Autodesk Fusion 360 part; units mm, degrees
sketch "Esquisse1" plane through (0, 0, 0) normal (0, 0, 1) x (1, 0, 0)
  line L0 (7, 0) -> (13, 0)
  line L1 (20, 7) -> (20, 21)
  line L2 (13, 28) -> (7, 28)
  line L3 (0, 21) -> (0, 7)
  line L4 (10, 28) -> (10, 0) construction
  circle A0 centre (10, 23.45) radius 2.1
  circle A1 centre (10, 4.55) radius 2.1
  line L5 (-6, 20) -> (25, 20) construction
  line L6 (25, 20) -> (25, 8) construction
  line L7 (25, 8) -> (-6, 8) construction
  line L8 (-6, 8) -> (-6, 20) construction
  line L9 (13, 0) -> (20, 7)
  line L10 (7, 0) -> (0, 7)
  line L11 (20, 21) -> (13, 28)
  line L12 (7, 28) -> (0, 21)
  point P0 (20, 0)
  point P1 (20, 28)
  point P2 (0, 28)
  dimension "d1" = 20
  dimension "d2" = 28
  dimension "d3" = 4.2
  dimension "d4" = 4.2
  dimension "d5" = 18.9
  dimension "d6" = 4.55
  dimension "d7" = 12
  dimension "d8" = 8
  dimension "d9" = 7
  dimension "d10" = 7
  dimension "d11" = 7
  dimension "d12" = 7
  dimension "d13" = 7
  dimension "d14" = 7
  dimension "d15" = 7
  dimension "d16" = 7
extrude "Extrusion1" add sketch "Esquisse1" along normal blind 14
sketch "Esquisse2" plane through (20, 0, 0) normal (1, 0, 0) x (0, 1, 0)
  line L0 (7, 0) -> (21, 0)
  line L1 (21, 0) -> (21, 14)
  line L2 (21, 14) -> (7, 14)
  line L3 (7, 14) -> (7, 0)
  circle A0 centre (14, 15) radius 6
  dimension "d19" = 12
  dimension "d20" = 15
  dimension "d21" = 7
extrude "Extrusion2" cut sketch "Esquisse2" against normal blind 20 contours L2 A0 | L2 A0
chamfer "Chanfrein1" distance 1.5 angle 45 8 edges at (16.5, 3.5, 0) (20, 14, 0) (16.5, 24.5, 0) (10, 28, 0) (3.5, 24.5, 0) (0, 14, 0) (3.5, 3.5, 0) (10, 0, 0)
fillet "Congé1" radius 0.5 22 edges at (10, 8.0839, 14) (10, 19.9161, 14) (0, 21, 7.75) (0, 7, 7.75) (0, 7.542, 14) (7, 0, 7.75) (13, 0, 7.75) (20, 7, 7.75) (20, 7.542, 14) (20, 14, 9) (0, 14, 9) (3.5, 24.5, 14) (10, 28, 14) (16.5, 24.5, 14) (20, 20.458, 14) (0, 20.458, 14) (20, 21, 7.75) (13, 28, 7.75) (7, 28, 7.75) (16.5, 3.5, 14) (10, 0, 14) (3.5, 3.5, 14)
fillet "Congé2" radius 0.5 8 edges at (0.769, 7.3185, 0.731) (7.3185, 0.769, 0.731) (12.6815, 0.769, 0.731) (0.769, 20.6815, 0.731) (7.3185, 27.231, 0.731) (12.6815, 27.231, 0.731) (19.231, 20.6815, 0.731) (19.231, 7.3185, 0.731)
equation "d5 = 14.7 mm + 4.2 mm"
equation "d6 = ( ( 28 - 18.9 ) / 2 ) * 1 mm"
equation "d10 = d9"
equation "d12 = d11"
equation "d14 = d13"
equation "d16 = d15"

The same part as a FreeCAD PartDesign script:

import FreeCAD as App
import Part
import Sketcher

V = App.Vector


def edges_at(feature, points):
    """Names of the edges that pass closest to the given points."""
    edges = feature.Shape.Edges
    near = lambda p: min(range(len(edges)), key=lambda i: edges[i].distToShape(Part.Vertex(*p))[0])
    return sorted({f"Edge{near(p) + 1}" for p in points})

doc = App.newDocument("Part")
params = doc.addObject("Spreadsheet::Sheet", "Params")
for row, (alias, value) in enumerate([
    ("sketch1_diameter", "4.2 mm"),
    ("pad1_length", "14 mm"),
    ("sketch2_diameter", "12 mm"),
    ("pocket1_length", "20 mm"),
    ("chamfer_size", "1.5 mm"),
    ("fillet_radius", "0.5 mm"),
    ("fillet2_radius", "0.5 mm"),
], start=1):
    params.set(f"A{row}", alias)
    params.set(f"B{row}", "=" + value)
    params.setAlias(f"B{row}", alias)

body = doc.addObject("PartDesign::Body", "Body")

# Sketch on XY plane
sketch1 = body.newObject("Sketcher::SketchObject", "Sketch")
sketch1.AttachmentSupport = (doc.getObject("XY_Plane"), [""])
sketch1.MapMode = "FlatFace"
sketch1.addGeometry([
    Part.LineSegment(V(0, 7, 0), V(7, 0, 0)),  # 0
    Part.LineSegment(V(7, 0, 0), V(13, 0, 0)),  # 1
    Part.LineSegment(V(13, 0, 0), V(20, 7, 0)),  # 2
    Part.LineSegment(V(20, 7, 0), V(20, 21, 0)),  # 3
    Part.LineSegment(V(20, 21, 0), V(13, 28, 0)),  # 4
    Part.LineSegment(V(13, 28, 0), V(7, 28, 0)),  # 5
    Part.LineSegment(V(7, 28, 0), V(0, 21, 0)),  # 6
    Part.LineSegment(V(0, 21, 0), V(0, 7, 0)),  # 7
    Part.Circle(V(10, 4.55, 0), V(0, 0, 1), 2.1),  # 8
    Part.Circle(V(10, 23.45, 0), V(0, 0, 1), 2.1),  # 9
], False)
sketch1.addConstraint([
    Sketcher.Constraint("Coincident", 0, 2, 1, 1),
    Sketcher.Constraint("Coincident", 1, 2, 2, 1),
    Sketcher.Constraint("Coincident", 2, 2, 3, 1),
    Sketcher.Constraint("Coincident", 3, 2, 4, 1),
    Sketcher.Constraint("Coincident", 4, 2, 5, 1),
    Sketcher.Constraint("Coincident", 5, 2, 6, 1),
    Sketcher.Constraint("Coincident", 6, 2, 7, 1),
    Sketcher.Constraint("Coincident", 7, 2, 0, 1),
    Sketcher.Constraint("Horizontal", 1),
    Sketcher.Constraint("Vertical", 3),
    Sketcher.Constraint("Horizontal", 5),
    Sketcher.Constraint("Vertical", 7),
    Sketcher.Constraint("Equal", 8, 9),
    Sketcher.Constraint("PointOnObject", 0, 2, -1),
    Sketcher.Constraint("PointOnObject", 6, 2, -2),
    Sketcher.Constraint("Perpendicular", 0, 2),
    Sketcher.Constraint("Perpendicular", 2, 4),
    Sketcher.Constraint("Perpendicular", 4, 6),
    Sketcher.Constraint("Horizontal", 3, 2, 6, 2),
    Sketcher.Constraint("Horizontal", 2, 2, 7, 2),
    Sketcher.Constraint("Vertical", 8, 3, 9, 3),
    Sketcher.Constraint("Vertical", 1, 2, 4, 2),
    Sketcher.Constraint("Vertical", 0, 2, 5, 2),
    Sketcher.Constraint("Diameter", 8, 4.2),
    Sketcher.Constraint("DistanceX", -1, 1, 0, 2, 7.0),
    Sketcher.Constraint("DistanceX", -1, 1, 2, 2, 20.0),
    Sketcher.Constraint("DistanceY", -1, 1, 4, 2, 28.0),
    Sketcher.Constraint("DistanceY", 8, 3, 9, 3, 18.9),
    Sketcher.Constraint("DistanceY", -1, 1, 8, 3, 4.55),
    Sketcher.Constraint("DistanceX", -1, 1, 8, 3, 10.0),
])
sketch1.setExpression("Constraints[23]", "Params.sketch1_diameter")
pad1 = body.newObject("PartDesign::Pad", "Pad")
pad1.Profile = sketch1
pad1.setExpression("Length", "Params.pad1_length")

# Sketch on YZ plane
sketch2 = body.newObject("Sketcher::SketchObject", "Sketch001")
sketch2.AttachmentSupport = (doc.getObject("YZ_Plane"), [""])
sketch2.MapMode = "FlatFace"
sketch2.AttachmentOffset = App.Placement(V(0, 0, 20), App.Rotation())
sketch2.addGeometry(Part.Circle(V(14, 15, 0), V(0, 0, 1), 6), False)
sketch2.addConstraint([
    Sketcher.Constraint("Diameter", 0, 12.0),
    Sketcher.Constraint("DistanceY", -1, 1, 0, 3, 15.0),
    Sketcher.Constraint("DistanceX", -1, 1, 0, 3, 14.0),
])
sketch2.setExpression("Constraints[0]", "Params.sketch2_diameter")
pocket1 = body.newObject("PartDesign::Pocket", "Pocket")
pocket1.Profile = sketch2
pocket1.setExpression("Length", "Params.pocket1_length")
doc.recompute()

chamfer = body.newObject("PartDesign::Chamfer", "Chamfer")
chamfer.Base = (pocket1, edges_at(pocket1, [
    (16.5, 3.5, 0),
    (20, 14, 0),
    (16.5, 24.5, 0),
    (10, 28, 0),
    (3.5, 24.5, 0),
    (0, 14, 0),
    (3.5, 3.5, 0),
    (10, 0, 0),
]))
chamfer.setExpression("Size", "Params.chamfer_size")
doc.recompute()

fillet = body.newObject("PartDesign::Fillet", "Fillet")
fillet.Base = (chamfer, edges_at(chamfer, [
    (10, 8.084, 14),
    (10, 19.916, 14),
    (0, 21, 7.75),
    (0, 7, 7.75),
    (0, 7.542, 14),
    (7, 0, 7.75),
    (13, 0, 7.75),
    (20, 7, 7.75),
    (20, 7.542, 14),
    (20, 14, 9),
    (0, 14, 9),
    (3.5, 24.5, 14),
    (10, 28, 14),
    (16.5, 24.5, 14),
    (20, 20.458, 14),
    (0, 20.458, 14),
    (20, 21, 7.75),
    (13, 28, 7.75),
    (7, 28, 7.75),
    (16.5, 3.5, 14),
    (10, 0, 14),
    (3.5, 3.5, 14),
]))
fillet.setExpression("Radius", "Params.fillet_radius")
doc.recompute()

fillet2 = body.newObject("PartDesign::Fillet", "Fillet001")
fillet2.Base = (fillet, edges_at(fillet, [
    (0.769, 7.319, 0.731),
    (7.319, 0.769, 0.731),
    (12.681, 0.769, 0.731),
    (0.769, 20.681, 0.731),
    (7.319, 27.231, 0.731),
    (12.681, 27.231, 0.731),
    (19.231, 20.681, 0.731),
    (19.231, 7.319, 0.731),
]))
fillet2.setExpression("Radius", "Params.fillet2_radius")

doc.recompute()
